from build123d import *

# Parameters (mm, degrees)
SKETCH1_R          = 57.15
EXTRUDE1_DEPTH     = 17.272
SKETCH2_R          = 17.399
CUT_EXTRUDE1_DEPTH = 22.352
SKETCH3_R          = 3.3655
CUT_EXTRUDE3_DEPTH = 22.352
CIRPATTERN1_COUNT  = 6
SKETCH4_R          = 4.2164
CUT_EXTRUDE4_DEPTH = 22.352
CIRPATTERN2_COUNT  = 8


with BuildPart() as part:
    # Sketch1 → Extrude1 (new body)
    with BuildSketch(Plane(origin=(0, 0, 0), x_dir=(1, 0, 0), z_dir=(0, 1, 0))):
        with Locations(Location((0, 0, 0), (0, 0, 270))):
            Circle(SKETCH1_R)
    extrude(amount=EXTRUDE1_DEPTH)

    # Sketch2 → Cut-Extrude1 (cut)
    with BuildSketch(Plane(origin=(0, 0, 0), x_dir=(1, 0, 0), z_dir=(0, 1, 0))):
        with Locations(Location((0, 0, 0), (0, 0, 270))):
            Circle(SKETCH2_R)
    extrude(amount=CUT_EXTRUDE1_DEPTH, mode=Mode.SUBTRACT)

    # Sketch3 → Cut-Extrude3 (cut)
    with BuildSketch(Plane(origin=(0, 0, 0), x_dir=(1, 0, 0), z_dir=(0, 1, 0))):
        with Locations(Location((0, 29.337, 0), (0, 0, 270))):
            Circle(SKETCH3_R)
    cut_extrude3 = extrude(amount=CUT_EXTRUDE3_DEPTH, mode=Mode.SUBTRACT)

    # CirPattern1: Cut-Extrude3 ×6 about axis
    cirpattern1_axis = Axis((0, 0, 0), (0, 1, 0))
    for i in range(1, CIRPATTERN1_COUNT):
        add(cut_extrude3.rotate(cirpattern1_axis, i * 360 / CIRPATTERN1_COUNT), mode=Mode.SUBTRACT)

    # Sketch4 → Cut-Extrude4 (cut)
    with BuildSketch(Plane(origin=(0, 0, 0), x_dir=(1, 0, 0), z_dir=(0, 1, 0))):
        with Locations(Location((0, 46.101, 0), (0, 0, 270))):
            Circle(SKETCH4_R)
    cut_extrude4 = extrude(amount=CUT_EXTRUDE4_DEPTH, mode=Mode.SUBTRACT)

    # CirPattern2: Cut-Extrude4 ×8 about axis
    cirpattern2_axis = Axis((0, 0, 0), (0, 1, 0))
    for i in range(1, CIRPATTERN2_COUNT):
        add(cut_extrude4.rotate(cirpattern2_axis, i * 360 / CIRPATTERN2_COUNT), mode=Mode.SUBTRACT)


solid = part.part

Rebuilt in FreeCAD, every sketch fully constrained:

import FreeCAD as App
import Part
import Sketcher

V = App.Vector
Q = App.Units.Quantity

doc = App.newDocument("Part")
body = doc.addObject("PartDesign::Body", "Body")

# Sketch on XZ plane
sketch1 = doc.addObject("Sketcher::SketchObject", "Sketch")
body.addObject(sketch1)
sketch1.AttachmentSupport = (doc.XZ_Plane, [""])
sketch1.MapMode = "FlatFace"
sketch1.addGeometry(Part.Circle(V(0, 0, 0), V(0, 0, 1), 57), False)
sketch1.addConstraint([
    Sketcher.Constraint("Coincident", 0, 3, -1, 1),
    Sketcher.Constraint("Diameter", 0, Q("4.5 in")),
])
pad1 = doc.addObject("PartDesign::Pad", "Pad")
body.addObject(pad1)
pad1.Profile = sketch1
pad1.Length = Q("0.68 in")
pad1.Reversed = True

# Sketch on XZ plane
sketch2 = doc.addObject("Sketcher::SketchObject", "Sketch001")
body.addObject(sketch2)
sketch2.AttachmentSupport = (doc.XZ_Plane, [""])
sketch2.MapMode = "FlatFace"
sketch2.addGeometry(Part.Circle(V(0, 0, 0), V(0, 0, 1), 17), False)
sketch2.addConstraint([
    Sketcher.Constraint("Coincident", 0, 3, -1, 1),
    Sketcher.Constraint("Diameter", 0, Q("1.37 in")),
])
pocket1 = doc.addObject("PartDesign::Pocket", "Pocket")
body.addObject(pocket1)
pocket1.Profile = sketch2
pocket1.Length = Q("0.88 in")

# Sketch on XZ plane
sketch3 = doc.addObject("Sketcher::SketchObject", "Sketch002")
body.addObject(sketch3)
sketch3.AttachmentSupport = (doc.XZ_Plane, [""])
sketch3.MapMode = "FlatFace"
sketch3.addGeometry(Part.Circle(V(0, -29.3, 0), V(0, 0, 1), 3.4), False)
sketch3.addConstraint([
    Sketcher.Constraint("PointOnObject", 0, 3, -2),
    Sketcher.Constraint("Diameter", 0, Q("0.265 in")),
    Sketcher.Constraint("DistanceY", 0, 3, -1, 1, Q("1.155 in")),
])
pocket2 = doc.addObject("PartDesign::Pocket", "Pocket001")
body.addObject(pocket2)
pocket2.Profile = sketch3
pocket2.Length = Q("0.88 in")
doc.recompute()

polarpattern = doc.addObject("PartDesign::PolarPattern", "PolarPattern")
body.addObject(polarpattern)
polarpattern.Originals = [pocket2]
polarpattern.Axis = (doc.Y_Axis, [""])
polarpattern.Angle = 360
polarpattern.Occurrences = 6
body.Tip = polarpattern

# Sketch on XZ plane
sketch4 = doc.addObject("Sketcher::SketchObject", "Sketch003")
body.addObject(sketch4)
sketch4.AttachmentSupport = (doc.XZ_Plane, [""])
sketch4.MapMode = "FlatFace"
sketch4.addGeometry(Part.Circle(V(0, -46.1, 0), V(0, 0, 1), 4.2), False)
sketch4.addConstraint([
    Sketcher.Constraint("PointOnObject", 0, 3, -2),
    Sketcher.Constraint("Diameter", 0, Q("0.332 in")),
    Sketcher.Constraint("DistanceY", 0, 3, -1, 1, Q("1.815 in")),
])
pocket3 = doc.addObject("PartDesign::Pocket", "Pocket002")
body.addObject(pocket3)
pocket3.Profile = sketch4
pocket3.Length = Q("0.88 in")
doc.recompute()

polarpattern2 = doc.addObject("PartDesign::PolarPattern", "PolarPattern001")
body.addObject(polarpattern2)
polarpattern2.Originals = [pocket3]
polarpattern2.Axis = (doc.Y_Axis, [""])
polarpattern2.Angle = 360
polarpattern2.Occurrences = 8
body.Tip = polarpattern2

doc.recompute()
